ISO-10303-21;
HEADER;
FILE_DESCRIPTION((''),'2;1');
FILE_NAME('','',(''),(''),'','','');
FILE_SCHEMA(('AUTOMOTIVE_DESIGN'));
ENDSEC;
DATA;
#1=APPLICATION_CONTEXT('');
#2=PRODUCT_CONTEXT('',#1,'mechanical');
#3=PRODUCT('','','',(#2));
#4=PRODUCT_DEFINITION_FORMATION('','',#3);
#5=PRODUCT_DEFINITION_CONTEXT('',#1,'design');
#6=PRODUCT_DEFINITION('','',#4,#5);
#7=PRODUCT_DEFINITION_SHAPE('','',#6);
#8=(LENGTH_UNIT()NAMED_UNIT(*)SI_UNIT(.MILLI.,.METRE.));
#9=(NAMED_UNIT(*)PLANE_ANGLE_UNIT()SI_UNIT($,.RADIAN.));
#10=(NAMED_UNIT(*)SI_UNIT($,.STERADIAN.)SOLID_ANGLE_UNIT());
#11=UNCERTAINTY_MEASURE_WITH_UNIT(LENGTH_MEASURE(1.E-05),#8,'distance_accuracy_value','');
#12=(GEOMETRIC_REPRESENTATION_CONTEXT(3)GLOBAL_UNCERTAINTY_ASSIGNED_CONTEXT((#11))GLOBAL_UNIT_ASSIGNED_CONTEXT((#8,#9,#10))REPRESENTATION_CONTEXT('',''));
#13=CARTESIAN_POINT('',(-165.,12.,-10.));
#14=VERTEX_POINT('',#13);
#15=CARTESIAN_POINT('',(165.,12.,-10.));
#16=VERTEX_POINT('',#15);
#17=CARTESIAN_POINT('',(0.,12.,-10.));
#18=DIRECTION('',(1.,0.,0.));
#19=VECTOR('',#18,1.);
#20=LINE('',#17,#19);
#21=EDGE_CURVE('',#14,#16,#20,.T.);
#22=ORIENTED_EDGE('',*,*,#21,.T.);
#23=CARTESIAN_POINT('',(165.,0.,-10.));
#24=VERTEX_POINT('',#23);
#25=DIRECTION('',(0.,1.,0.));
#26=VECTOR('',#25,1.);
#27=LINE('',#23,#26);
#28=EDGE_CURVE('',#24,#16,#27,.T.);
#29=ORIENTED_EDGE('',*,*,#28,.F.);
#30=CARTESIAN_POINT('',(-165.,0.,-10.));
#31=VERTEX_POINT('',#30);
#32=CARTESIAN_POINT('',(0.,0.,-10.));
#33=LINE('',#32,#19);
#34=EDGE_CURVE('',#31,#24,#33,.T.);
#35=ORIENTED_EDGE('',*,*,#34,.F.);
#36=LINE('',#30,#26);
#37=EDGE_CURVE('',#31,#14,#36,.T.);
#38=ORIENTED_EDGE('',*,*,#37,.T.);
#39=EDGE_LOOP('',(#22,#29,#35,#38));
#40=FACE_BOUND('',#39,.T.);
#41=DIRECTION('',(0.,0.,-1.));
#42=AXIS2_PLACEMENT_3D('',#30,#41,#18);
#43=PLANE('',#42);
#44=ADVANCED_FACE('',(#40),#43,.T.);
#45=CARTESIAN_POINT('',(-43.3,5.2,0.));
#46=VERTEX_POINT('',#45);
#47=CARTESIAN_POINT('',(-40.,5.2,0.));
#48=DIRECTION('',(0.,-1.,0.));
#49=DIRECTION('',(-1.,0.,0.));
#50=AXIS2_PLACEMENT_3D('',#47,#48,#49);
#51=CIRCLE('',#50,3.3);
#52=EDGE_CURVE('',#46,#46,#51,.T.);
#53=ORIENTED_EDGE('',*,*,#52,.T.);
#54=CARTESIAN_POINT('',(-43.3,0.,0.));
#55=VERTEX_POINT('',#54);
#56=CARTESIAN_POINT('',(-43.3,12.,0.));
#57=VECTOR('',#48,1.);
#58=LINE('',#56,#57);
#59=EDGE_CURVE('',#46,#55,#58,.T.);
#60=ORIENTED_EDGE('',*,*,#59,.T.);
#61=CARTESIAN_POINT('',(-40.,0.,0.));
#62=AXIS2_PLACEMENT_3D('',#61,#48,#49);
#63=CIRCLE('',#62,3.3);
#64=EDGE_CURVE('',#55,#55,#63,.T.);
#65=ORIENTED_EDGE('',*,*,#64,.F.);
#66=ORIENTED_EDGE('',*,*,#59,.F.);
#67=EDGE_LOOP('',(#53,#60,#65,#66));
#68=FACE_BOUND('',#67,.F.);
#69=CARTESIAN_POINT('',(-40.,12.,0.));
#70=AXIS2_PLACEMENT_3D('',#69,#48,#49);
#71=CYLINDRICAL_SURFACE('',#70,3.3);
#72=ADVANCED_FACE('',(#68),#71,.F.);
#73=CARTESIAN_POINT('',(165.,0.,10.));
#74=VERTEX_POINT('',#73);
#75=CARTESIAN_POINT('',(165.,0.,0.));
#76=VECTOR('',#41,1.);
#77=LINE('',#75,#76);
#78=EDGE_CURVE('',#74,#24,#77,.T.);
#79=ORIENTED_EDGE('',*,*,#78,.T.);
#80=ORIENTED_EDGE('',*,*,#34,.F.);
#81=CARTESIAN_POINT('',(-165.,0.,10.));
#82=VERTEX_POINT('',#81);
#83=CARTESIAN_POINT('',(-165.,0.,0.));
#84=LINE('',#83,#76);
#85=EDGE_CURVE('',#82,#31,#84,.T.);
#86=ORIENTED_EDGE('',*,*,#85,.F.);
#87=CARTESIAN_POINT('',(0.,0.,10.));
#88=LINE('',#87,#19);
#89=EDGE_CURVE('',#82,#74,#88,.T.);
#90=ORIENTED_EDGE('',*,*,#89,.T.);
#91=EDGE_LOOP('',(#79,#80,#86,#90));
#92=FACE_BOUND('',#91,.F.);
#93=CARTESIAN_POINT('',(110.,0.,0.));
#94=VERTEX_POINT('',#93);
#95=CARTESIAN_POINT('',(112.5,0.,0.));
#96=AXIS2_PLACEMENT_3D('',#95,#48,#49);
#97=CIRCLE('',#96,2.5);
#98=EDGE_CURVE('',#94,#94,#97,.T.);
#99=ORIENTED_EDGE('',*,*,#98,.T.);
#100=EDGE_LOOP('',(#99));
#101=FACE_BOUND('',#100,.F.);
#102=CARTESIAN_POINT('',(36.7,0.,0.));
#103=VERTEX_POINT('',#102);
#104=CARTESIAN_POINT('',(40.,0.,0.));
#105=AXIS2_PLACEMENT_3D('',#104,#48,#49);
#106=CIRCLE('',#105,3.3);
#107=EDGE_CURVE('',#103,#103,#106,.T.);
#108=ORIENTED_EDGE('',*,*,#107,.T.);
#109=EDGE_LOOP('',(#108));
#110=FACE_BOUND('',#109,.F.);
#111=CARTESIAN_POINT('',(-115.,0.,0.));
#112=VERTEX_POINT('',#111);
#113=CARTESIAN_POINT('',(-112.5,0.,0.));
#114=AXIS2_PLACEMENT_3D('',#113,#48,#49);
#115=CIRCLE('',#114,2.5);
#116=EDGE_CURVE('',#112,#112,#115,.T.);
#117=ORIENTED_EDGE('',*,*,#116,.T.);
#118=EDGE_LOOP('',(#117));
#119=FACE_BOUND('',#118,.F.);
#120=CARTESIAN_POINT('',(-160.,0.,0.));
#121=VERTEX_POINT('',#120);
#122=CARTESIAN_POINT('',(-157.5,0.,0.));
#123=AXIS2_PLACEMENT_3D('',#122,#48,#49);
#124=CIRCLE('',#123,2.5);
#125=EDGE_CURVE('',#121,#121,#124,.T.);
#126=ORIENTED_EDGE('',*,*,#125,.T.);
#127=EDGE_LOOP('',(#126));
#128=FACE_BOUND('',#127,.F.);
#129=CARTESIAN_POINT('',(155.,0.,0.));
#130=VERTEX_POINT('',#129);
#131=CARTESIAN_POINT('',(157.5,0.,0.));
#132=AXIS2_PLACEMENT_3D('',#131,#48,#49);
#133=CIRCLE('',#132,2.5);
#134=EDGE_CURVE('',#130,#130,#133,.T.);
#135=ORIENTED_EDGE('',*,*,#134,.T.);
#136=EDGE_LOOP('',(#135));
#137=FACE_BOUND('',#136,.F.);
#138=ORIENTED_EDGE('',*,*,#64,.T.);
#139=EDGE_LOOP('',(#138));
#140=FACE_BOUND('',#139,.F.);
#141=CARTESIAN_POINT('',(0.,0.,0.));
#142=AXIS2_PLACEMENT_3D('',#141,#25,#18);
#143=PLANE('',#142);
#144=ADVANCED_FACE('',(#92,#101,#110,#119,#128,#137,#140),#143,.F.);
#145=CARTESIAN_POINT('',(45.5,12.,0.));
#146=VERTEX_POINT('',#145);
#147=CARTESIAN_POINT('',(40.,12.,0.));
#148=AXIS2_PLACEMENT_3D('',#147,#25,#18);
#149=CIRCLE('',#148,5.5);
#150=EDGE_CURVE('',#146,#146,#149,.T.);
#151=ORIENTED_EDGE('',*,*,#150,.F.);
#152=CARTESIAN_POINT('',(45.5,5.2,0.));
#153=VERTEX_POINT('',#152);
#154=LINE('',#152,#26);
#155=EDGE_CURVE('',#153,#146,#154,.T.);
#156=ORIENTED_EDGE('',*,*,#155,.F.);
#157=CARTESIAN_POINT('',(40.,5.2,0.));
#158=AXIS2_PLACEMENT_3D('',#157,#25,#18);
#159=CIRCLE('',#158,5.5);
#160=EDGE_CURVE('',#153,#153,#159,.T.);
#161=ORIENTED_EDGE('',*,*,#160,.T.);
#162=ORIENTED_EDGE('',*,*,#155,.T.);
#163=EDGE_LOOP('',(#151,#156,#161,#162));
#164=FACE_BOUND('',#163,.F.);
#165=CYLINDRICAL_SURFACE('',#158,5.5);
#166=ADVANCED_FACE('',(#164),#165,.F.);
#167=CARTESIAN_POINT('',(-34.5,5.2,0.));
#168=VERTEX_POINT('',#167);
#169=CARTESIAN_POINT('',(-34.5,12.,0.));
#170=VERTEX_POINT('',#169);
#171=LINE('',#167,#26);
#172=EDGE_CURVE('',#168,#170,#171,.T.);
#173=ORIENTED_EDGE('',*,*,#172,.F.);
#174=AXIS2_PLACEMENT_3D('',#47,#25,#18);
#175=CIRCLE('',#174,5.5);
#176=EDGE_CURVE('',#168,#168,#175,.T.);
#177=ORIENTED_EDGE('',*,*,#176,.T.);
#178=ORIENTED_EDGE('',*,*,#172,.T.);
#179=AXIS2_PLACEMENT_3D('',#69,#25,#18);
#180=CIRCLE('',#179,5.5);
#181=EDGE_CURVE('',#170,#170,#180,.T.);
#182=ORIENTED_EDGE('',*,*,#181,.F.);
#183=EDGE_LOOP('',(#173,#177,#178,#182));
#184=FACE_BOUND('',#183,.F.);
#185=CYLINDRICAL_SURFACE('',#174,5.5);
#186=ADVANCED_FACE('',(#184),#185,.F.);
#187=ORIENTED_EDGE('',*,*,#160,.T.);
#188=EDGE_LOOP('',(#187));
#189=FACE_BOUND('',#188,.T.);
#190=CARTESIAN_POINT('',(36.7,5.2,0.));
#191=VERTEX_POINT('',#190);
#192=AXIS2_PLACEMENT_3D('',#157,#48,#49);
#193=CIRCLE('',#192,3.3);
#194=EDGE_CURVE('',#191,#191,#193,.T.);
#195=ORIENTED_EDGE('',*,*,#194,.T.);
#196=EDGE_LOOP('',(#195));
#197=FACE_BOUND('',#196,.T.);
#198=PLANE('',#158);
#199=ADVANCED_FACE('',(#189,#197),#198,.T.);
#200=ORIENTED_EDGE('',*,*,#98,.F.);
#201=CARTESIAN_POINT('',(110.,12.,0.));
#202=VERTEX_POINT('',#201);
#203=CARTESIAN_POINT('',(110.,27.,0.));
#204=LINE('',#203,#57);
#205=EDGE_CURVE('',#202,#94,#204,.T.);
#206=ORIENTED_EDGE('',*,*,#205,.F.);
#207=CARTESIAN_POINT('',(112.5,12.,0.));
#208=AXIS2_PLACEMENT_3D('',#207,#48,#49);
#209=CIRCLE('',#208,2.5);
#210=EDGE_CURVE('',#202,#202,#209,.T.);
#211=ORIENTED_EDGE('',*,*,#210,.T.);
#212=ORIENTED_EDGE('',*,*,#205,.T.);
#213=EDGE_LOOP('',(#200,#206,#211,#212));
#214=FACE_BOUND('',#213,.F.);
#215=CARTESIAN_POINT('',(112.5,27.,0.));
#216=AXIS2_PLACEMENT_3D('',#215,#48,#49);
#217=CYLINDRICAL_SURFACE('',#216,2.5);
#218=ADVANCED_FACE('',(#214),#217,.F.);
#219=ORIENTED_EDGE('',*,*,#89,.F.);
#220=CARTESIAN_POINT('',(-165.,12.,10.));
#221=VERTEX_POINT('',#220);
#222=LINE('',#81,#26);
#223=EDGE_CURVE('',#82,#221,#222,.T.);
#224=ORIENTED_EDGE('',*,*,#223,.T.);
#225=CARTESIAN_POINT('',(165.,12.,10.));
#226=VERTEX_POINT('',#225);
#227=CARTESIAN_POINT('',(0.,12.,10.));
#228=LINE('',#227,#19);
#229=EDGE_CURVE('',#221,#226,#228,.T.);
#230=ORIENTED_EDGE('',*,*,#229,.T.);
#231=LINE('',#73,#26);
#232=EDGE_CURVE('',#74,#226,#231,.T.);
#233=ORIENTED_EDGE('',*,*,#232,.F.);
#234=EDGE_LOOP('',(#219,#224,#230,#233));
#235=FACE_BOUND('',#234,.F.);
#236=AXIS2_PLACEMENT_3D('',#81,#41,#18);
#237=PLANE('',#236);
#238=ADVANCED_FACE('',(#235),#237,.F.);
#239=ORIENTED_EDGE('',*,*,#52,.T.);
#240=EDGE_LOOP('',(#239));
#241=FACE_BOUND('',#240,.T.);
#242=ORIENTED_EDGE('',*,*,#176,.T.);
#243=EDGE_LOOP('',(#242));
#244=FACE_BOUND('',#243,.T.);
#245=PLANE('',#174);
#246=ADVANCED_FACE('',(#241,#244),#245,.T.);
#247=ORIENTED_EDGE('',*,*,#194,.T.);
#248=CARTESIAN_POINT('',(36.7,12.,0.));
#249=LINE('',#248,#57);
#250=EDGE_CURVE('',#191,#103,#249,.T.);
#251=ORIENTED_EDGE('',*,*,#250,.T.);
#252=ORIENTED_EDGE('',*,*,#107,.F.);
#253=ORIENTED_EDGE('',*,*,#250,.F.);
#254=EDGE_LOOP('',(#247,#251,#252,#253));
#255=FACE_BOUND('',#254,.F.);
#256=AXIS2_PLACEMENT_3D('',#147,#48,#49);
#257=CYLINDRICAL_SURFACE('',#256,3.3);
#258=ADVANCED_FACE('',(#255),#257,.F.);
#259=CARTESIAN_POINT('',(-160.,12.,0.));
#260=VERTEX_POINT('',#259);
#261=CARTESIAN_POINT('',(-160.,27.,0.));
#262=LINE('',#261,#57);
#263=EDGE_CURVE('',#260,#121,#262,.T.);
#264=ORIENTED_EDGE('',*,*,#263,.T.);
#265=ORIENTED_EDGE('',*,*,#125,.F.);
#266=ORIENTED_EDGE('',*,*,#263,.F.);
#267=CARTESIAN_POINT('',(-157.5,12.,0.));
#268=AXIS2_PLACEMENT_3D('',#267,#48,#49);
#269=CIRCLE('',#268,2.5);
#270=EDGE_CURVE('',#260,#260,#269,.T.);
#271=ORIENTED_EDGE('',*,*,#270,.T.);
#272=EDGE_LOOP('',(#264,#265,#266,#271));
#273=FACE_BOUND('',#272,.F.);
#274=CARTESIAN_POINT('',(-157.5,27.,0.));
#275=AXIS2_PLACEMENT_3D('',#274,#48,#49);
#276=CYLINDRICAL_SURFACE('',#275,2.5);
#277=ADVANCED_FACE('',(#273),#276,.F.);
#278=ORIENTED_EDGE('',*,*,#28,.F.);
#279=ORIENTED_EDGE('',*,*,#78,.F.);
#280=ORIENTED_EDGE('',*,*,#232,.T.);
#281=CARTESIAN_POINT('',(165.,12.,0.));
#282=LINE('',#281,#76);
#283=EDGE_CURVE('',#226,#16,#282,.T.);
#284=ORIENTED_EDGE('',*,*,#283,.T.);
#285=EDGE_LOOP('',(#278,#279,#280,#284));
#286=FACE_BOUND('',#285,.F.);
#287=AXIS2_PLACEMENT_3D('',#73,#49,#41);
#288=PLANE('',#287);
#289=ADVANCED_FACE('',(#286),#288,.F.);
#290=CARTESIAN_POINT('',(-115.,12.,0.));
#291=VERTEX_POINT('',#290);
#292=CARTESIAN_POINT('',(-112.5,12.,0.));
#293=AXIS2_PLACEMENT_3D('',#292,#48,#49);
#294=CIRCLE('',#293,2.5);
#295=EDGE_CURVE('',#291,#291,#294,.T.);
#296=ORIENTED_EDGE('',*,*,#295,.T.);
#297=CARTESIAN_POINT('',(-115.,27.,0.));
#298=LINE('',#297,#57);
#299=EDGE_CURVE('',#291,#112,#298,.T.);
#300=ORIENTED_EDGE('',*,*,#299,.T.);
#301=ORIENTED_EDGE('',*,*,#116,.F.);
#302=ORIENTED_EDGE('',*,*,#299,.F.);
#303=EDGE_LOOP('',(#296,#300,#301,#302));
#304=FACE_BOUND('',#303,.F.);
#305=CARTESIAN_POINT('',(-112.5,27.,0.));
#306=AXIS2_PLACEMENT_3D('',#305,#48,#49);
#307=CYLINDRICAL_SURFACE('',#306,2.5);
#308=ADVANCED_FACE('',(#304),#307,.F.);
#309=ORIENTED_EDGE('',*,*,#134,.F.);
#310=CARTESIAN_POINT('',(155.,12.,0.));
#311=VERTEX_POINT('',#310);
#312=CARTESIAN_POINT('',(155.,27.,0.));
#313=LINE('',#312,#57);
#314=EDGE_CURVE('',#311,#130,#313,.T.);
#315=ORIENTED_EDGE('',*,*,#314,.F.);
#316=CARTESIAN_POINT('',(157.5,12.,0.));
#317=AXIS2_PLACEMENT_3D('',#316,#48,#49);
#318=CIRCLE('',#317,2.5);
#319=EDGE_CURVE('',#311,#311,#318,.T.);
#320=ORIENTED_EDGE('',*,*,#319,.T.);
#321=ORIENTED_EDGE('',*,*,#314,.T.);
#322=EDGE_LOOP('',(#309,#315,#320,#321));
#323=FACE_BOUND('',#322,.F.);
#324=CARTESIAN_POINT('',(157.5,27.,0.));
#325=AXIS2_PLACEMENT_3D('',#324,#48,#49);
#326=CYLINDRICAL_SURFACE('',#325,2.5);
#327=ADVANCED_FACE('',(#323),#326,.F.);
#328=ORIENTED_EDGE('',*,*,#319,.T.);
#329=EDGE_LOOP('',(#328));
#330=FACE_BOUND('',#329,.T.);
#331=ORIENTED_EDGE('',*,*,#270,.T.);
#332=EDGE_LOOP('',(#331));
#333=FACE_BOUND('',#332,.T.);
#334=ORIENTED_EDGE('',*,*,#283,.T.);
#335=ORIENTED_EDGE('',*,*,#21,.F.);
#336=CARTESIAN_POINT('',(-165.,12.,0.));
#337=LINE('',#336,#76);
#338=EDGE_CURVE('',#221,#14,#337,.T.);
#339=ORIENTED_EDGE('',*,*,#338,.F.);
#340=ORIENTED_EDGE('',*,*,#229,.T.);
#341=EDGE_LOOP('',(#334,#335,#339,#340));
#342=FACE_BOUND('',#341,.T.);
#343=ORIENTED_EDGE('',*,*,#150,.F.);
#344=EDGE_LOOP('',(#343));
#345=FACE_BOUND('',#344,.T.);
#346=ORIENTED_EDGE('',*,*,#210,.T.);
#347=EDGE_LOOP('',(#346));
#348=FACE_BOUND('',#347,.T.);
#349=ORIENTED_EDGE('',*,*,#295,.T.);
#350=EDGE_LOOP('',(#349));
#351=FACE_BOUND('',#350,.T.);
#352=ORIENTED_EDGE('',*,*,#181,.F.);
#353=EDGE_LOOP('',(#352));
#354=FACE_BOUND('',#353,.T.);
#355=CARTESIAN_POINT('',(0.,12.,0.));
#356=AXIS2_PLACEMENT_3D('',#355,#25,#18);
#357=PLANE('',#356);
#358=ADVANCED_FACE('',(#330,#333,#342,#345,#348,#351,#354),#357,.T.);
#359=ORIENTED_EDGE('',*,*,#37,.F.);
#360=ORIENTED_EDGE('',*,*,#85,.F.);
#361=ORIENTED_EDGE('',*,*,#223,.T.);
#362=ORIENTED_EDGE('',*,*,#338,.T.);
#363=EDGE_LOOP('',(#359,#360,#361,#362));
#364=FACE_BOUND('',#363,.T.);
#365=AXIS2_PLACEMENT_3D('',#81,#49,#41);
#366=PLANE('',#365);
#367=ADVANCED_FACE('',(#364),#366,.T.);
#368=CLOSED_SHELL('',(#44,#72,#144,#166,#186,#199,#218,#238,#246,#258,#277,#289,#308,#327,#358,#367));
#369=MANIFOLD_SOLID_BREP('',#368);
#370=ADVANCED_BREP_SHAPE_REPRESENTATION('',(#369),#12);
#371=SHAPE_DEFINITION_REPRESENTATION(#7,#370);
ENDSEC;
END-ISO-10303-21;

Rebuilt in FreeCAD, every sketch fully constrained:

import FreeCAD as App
import Part
import Sketcher

V = App.Vector

doc = App.newDocument("Part")
body = doc.addObject("PartDesign::Body", "Body")

# Sketch on XZ plane
sketch1 = doc.addObject("Sketcher::SketchObject", "Sketch")
body.addObject(sketch1)
sketch1.AttachmentSupport = (doc.XZ_Plane, [""])
sketch1.MapMode = "FlatFace"
sketch1.addGeometry([
    Part.LineSegment(V(-165, -10, 0), V(-165, 10, 0)),
    Part.LineSegment(V(-165, 10, 0), V(165, 10, 0)),
    Part.LineSegment(V(165, 10, 0), V(165, -10, 0)),
    Part.LineSegment(V(165, -10, 0), V(-165, -10, 0)),
], False)
sketch1.addConstraint([
    Sketcher.Constraint("Coincident", 0, 2, 1, 1),
    Sketcher.Constraint("Coincident", 1, 2, 2, 1),
    Sketcher.Constraint("Coincident", 2, 2, 3, 1),
    Sketcher.Constraint("Coincident", 3, 2, 0, 1),
    Sketcher.Constraint("Vertical", 0),
    Sketcher.Constraint("Horizontal", 1),
    Sketcher.Constraint("Vertical", 2),
    Sketcher.Constraint("Horizontal", 3),
    Sketcher.Constraint("Symmetric", 0, 2, 2, 2, -1, 1),
    Sketcher.Constraint("DistanceX", 1, 1, 1, 2, 330.0),
    Sketcher.Constraint("DistanceY", 0, 1, 0, 2, 20.0),
])
pad1 = doc.addObject("PartDesign::Pad", "Pad")
body.addObject(pad1)
pad1.Profile = sketch1
pad1.Length = 12
pad1.Reversed = True

# Sketch on XZ plane
sketch2 = doc.addObject("Sketcher::SketchObject", "Sketch001")
body.addObject(sketch2)
sketch2.AttachmentSupport = (doc.XZ_Plane, [""])
sketch2.MapMode = "FlatFace"
sketch2.AttachmentOffset = App.Placement(V(0, 0, -12), App.Rotation())
sketch2.addGeometry([
    Part.Circle(V(-157.5, 0, 0), V(0, 0, 1), 2.5),
    Part.Circle(V(-112.5, 0, 0), V(0, 0, 1), 2.5),
    Part.Circle(V(112.5, 0, 0), V(0, 0, 1), 2.5),
    Part.Circle(V(157.5, 0, 0), V(0, 0, 1), 2.5),
], False)
sketch2.addConstraint([
    Sketcher.Constraint("Equal", 0, 1),
    Sketcher.Constraint("Equal", 1, 2),
    Sketcher.Constraint("Equal", 2, 3),
    Sketcher.Constraint("Symmetric", 1, 3, 2, 3, -1, 1),
    Sketcher.Constraint("Symmetric", 0, 3, 3, 3, -1, 1),
    Sketcher.Constraint("PointOnObject", 0, 3, -1),
    Sketcher.Constraint("PointOnObject", 1, 3, -1),
    Sketcher.Constraint("Diameter", 0, 5.0),
    Sketcher.Constraint("DistanceX", 0, 3, 1, 3, 45.0),
    Sketcher.Constraint("DistanceX", 1, 3, 2, 3, 225.0),
])
doc.recompute()
hole = doc.addObject("PartDesign::Hole", "Hole")
body.addObject(hole)
hole.Profile = sketch2
hole.ThreadType = "None"
hole.Diameter = 5
hole.DepthType = "Dimension"
hole.Depth = 15
hole.DrillPoint = "Angled"
hole.DrillPointAngle = 118
hole.Reversed = True

# Sketch on XZ plane
sketch3 = doc.addObject("Sketcher::SketchObject", "Sketch002")
body.addObject(sketch3)
sketch3.AttachmentSupport = (doc.XZ_Plane, [""])
sketch3.MapMode = "FlatFace"
sketch3.AttachmentOffset = App.Placement(V(0, 0, -12), App.Rotation())
sketch3.addGeometry([
    Part.Circle(V(-40, 0, 0), V(0, 0, 1), 3.3),
    Part.Circle(V(40, 0, 0), V(0, 0, 1), 3.3),
], False)
sketch3.addConstraint([
    Sketcher.Constraint("Equal", 0, 1),
    Sketcher.Constraint("Symmetric", 0, 3, 1, 3, -1, 1),
    Sketcher.Constraint("PointOnObject", 0, 3, -1),
    Sketcher.Constraint("Diameter", 0, 6.6),
    Sketcher.Constraint("DistanceX", 0, 3, -1, 1, 40.0),
])
doc.recompute()
hole2 = doc.addObject("PartDesign::Hole", "Hole001")
body.addObject(hole2)
hole2.Profile = sketch3
hole2.ThreadType = "None"
hole2.Diameter = 6.6
hole2.DepthType = "ThroughAll"
hole2.HoleCutType = "Counterbore"
hole2.HoleCutDiameter = 11
hole2.HoleCutDepth = 6.8
hole2.Reversed = True

doc.recompute()
